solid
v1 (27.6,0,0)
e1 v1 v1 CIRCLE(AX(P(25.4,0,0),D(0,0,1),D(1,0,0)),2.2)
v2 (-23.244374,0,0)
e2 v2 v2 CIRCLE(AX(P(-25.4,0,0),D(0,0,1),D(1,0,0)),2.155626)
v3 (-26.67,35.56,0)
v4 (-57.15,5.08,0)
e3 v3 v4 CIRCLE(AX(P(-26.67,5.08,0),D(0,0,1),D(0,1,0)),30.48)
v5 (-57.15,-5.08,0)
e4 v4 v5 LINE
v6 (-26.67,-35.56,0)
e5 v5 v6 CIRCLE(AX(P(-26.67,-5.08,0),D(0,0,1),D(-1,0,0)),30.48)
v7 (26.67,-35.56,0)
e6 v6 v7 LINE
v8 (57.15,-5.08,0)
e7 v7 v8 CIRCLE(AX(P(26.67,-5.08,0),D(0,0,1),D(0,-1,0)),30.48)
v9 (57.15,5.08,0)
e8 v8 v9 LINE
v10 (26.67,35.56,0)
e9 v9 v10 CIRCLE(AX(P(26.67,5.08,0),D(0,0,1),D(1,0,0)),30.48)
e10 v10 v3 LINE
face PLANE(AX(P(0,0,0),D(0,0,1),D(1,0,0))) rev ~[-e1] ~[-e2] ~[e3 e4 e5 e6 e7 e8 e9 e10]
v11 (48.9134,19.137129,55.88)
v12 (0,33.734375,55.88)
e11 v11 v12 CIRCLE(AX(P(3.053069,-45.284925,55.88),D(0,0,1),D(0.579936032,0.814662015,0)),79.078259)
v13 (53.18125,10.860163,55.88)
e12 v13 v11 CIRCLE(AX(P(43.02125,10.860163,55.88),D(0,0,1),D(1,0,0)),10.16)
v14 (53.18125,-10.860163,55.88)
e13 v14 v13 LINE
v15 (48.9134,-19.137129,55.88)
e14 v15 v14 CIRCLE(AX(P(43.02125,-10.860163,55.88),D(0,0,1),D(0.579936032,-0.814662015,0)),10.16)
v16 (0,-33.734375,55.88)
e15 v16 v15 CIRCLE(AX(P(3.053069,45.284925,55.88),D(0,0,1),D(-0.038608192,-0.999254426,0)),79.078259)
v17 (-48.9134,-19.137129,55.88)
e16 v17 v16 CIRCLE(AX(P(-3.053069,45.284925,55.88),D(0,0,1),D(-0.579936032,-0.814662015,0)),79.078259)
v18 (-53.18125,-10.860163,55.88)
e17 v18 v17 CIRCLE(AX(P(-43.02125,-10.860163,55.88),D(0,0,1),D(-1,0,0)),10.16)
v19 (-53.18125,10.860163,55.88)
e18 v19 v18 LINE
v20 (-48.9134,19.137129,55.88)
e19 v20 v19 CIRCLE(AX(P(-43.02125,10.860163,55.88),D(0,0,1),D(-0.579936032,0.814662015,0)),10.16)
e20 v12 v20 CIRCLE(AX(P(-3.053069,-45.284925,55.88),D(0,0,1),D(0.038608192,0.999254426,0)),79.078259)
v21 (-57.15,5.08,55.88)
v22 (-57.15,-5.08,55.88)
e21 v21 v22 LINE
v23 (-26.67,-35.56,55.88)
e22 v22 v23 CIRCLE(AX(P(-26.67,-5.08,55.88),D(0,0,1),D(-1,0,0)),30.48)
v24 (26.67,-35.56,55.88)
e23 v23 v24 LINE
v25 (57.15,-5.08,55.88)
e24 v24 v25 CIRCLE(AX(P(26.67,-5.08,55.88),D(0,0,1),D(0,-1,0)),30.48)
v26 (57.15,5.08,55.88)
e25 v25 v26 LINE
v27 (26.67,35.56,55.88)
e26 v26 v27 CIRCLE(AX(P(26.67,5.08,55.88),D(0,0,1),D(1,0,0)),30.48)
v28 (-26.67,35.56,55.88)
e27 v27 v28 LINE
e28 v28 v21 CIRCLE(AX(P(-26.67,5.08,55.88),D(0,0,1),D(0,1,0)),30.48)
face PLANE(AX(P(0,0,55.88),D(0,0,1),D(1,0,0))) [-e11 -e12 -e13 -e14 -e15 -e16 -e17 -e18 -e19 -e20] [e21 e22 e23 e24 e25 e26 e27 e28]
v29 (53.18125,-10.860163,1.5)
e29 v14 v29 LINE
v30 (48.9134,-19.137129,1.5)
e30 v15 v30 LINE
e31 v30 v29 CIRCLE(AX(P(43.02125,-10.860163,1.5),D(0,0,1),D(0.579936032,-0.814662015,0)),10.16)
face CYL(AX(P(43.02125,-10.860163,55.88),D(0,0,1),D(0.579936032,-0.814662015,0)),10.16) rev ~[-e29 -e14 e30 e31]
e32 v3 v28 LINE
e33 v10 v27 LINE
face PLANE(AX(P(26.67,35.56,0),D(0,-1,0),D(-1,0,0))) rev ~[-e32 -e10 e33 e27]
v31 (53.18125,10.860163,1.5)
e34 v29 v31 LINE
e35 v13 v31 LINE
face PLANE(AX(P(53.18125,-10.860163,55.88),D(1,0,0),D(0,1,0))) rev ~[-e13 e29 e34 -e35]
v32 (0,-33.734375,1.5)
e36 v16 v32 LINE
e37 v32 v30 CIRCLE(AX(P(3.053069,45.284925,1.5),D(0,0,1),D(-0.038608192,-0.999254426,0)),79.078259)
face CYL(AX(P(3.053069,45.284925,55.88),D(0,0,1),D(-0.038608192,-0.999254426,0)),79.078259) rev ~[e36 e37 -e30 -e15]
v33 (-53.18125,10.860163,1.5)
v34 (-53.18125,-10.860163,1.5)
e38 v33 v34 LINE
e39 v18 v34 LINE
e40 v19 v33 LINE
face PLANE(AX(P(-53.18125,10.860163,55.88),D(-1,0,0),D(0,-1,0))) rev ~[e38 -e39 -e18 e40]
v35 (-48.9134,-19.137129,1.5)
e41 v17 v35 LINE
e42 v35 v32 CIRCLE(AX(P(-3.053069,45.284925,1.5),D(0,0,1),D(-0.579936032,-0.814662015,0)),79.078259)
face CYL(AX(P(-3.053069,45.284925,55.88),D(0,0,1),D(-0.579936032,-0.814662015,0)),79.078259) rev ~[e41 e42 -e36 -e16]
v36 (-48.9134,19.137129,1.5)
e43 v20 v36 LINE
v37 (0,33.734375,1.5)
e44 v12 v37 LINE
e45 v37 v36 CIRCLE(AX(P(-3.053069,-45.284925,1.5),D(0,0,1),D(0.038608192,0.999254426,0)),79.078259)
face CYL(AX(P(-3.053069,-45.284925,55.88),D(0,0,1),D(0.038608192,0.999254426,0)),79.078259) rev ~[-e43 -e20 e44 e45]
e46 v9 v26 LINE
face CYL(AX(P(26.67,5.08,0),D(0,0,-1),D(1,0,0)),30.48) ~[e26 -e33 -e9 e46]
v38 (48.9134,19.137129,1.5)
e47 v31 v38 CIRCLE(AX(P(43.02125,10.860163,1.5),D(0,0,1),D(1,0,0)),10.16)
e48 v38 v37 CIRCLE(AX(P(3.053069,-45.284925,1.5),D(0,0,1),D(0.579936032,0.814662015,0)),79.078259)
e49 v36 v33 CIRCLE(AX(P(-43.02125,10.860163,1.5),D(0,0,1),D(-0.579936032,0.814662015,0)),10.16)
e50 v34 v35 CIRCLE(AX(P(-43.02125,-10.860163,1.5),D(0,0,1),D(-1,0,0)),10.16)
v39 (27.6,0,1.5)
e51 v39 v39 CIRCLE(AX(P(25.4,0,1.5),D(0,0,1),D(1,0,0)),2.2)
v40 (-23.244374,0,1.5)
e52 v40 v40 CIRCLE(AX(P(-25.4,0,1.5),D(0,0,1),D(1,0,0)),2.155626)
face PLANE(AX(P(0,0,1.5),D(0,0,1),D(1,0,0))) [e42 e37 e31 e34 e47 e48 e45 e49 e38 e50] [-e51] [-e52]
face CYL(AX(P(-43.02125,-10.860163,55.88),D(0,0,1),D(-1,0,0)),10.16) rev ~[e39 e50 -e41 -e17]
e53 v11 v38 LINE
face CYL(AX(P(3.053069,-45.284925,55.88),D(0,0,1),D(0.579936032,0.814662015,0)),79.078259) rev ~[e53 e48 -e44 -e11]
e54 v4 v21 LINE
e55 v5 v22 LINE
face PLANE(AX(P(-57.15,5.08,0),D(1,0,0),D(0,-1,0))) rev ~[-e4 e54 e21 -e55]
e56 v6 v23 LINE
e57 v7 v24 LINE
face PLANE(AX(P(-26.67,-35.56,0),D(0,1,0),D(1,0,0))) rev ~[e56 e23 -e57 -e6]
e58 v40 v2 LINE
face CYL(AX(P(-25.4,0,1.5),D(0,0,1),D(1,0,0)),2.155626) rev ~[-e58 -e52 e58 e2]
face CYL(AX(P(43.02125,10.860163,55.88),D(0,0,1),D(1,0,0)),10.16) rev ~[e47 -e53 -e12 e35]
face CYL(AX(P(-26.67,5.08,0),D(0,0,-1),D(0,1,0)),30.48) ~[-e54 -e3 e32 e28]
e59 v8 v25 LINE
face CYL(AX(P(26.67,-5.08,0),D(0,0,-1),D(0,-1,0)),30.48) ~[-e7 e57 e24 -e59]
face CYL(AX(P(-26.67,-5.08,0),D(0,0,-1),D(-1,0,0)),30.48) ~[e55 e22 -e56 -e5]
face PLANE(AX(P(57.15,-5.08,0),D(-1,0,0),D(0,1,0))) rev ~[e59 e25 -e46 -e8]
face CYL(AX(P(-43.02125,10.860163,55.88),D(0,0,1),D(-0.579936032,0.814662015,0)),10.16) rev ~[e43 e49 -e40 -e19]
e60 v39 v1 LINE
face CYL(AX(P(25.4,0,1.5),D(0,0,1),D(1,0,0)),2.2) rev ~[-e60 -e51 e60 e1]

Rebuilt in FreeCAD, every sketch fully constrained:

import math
import FreeCAD as App
import Part
import Sketcher
from FreeCAD import Vector
Q = App.Units.Quantity

doc = App.newDocument("Part")
body = doc.addObject("PartDesign::Body", "Body")

# Sketch on XY plane
sketch1 = doc.addObject("Sketcher::SketchObject", "Sketch")
body.addObject(sketch1)
sketch1.AttachmentSupport = (doc.XY_Plane, [""])
sketch1.MapMode = "FlatFace"
sketch1.addGeometry(Part.LineSegment(Vector(26.67, 35.56, 0), Vector(-26.67, 35.56, 0)), False)
sketch1.addGeometry(Part.ArcOfCircle(Part.Circle(Vector(-26.67, 5.08, 0), Vector(0, 0, 1), 30.48), math.radians(90), math.radians(180)), False)
sketch1.addGeometry(Part.LineSegment(Vector(-57.15, 5.08, 0), Vector(-57.15, -5.08, 0)), False)
sketch1.addGeometry(Part.ArcOfCircle(Part.Circle(Vector(-26.67, -5.08, 0), Vector(0, 0, 1), 30.48), math.radians(180), math.radians(270)), False)
sketch1.addGeometry(Part.LineSegment(Vector(-26.67, -35.56, 0), Vector(26.67, -35.56, 0)), False)
sketch1.addGeometry(Part.ArcOfCircle(Part.Circle(Vector(26.67, -5.08, 0), Vector(0, 0, 1), 30.48), math.radians(-90), math.radians(0)), False)
sketch1.addGeometry(Part.LineSegment(Vector(57.15, -5.08, 0), Vector(57.15, 5.08, 0)), False)
sketch1.addGeometry(Part.ArcOfCircle(Part.Circle(Vector(26.67, 5.08, 0), Vector(0, 0, 1), 30.48), math.radians(0), math.radians(90)), False)
sketch1.addConstraint(Sketcher.Constraint("Tangent", 0, 2, 1, 1))
sketch1.addConstraint(Sketcher.Constraint("Tangent", 1, 2, 2, 1))
sketch1.addConstraint(Sketcher.Constraint("Tangent", 2, 2, 3, 1))
sketch1.addConstraint(Sketcher.Constraint("Tangent", 3, 2, 4, 1))
sketch1.addConstraint(Sketcher.Constraint("Tangent", 4, 2, 5, 1))
sketch1.addConstraint(Sketcher.Constraint("Tangent", 5, 2, 6, 1))
sketch1.addConstraint(Sketcher.Constraint("Tangent", 6, 2, 7, 1))
sketch1.addConstraint(Sketcher.Constraint("Tangent", 7, 2, 0, 1))
sketch1.addConstraint(Sketcher.Constraint("Horizontal", 0))
sketch1.addConstraint(Sketcher.Constraint("Vertical", 2))
sketch1.addConstraint(Sketcher.Constraint("Horizontal", 4))
sketch1.addConstraint(Sketcher.Constraint("Vertical", 6))
sketch1.addConstraint(Sketcher.Constraint("Equal", 1, 3))
sketch1.addConstraint(Sketcher.Constraint("Equal", 3, 5))
sketch1.addConstraint(Sketcher.Constraint("Equal", 5, 7))
sketch1.addConstraint(Sketcher.Constraint("Symmetric", 1, 3, 5, 3, -1, 1))
sketch1.addConstraint(Sketcher.Constraint("Radius", 1, Q("1.2 in")))
sketch1.addConstraint(Sketcher.Constraint("DistanceX", 0, 2, 0, 1, Q("2.1 in")))
sketch1.addConstraint(Sketcher.Constraint("DistanceY", 2, 2, 2, 1, Q("0.4 in")))
pad1 = doc.addObject("PartDesign::Pad", "Pad")
body.addObject(pad1)
pad1.Profile = sketch1
pad1.Length = Q("2.2 in")

# Sketch on XY plane
sketch2 = doc.addObject("Sketcher::SketchObject", "Sketch001")
body.addObject(sketch2)
sketch2.AttachmentSupport = (doc.XY_Plane, [""])
sketch2.MapMode = "FlatFace"
sketch2.AttachmentOffset = App.Placement(Vector(0, 0, 2.2 * 25.4), App.Rotation())
sketch2.addGeometry(Part.ArcOfCircle(Part.Circle(Vector(3.053069, -45.284925, 0), Vector(0, 0, 1), 79.078259), math.radians(54.553956), math.radians(92.212636)), False)
sketch2.addGeometry(Part.ArcOfCircle(Part.Circle(Vector(-3.053069, -45.284925, 0), Vector(0, 0, 1), 79.078259), math.radians(87.787364), math.radians(125.446044)), False)
sketch2.addGeometry(Part.ArcOfCircle(Part.Circle(Vector(-43.02125, 10.860163, 0), Vector(0, 0, 1), 10.16), math.radians(125.446044), math.radians(180)), False)
sketch2.addGeometry(Part.LineSegment(Vector(-53.18125, 10.860163, 0), Vector(-53.18125, -10.860163, 0)), False)
sketch2.addGeometry(Part.ArcOfCircle(Part.Circle(Vector(-43.02125, -10.860163, 0), Vector(0, 0, 1), 10.16), math.radians(180), math.radians(234.553956)), False)
sketch2.addGeometry(Part.ArcOfCircle(Part.Circle(Vector(-3.053069, 45.284925, 0), Vector(0, 0, 1), 79.078259), math.radians(-125.446044), math.radians(-87.787364)), False)
sketch2.addGeometry(Part.ArcOfCircle(Part.Circle(Vector(3.053069, 45.284925, 0), Vector(0, 0, 1), 79.078259), math.radians(-92.212636), math.radians(-54.553956)), False)
sketch2.addGeometry(Part.ArcOfCircle(Part.Circle(Vector(43.02125, -10.860163, 0), Vector(0, 0, 1), 10.16), math.radians(-54.553956), math.radians(0)), False)
sketch2.addGeometry(Part.LineSegment(Vector(53.18125, -10.860163, 0), Vector(53.18125, 10.860163, 0)), False)
sketch2.addGeometry(Part.ArcOfCircle(Part.Circle(Vector(43.02125, 10.860163, 0), Vector(0, 0, 1), 10.16), math.radians(0), math.radians(54.553956)), False)
sketch2.addConstraint(Sketcher.Constraint("Coincident", 0, 2, 1, 1))
sketch2.addConstraint(Sketcher.Constraint("Tangent", 1, 2, 2, 1))
sketch2.addConstraint(Sketcher.Constraint("Tangent", 2, 2, 3, 1))
sketch2.addConstraint(Sketcher.Constraint("Tangent", 3, 2, 4, 1))
sketch2.addConstraint(Sketcher.Constraint("Tangent", 4, 2, 5, 1))
sketch2.addConstraint(Sketcher.Constraint("Coincident", 5, 2, 6, 1))
sketch2.addConstraint(Sketcher.Constraint("Tangent", 6, 2, 7, 1))
sketch2.addConstraint(Sketcher.Constraint("Tangent", 7, 2, 8, 1))
sketch2.addConstraint(Sketcher.Constraint("Tangent", 8, 2, 9, 1))
sketch2.addConstraint(Sketcher.Constraint("Tangent", 9, 2, 0, 1))
sketch2.addConstraint(Sketcher.Constraint("Vertical", 3))
sketch2.addConstraint(Sketcher.Constraint("Vertical", 8))
sketch2.addConstraint(Sketcher.Constraint("Equal", 0, 1))
sketch2.addConstraint(Sketcher.Constraint("Equal", 2, 4))
sketch2.addConstraint(Sketcher.Constraint("Equal", 1, 5))
sketch2.addConstraint(Sketcher.Constraint("Equal", 5, 6))
sketch2.addConstraint(Sketcher.Constraint("Equal", 4, 7))
sketch2.addConstraint(Sketcher.Constraint("Equal", 7, 9))
sketch2.addConstraint(Sketcher.Constraint("Symmetric", 0, 3, 5, 3, -1, 1))
sketch2.addConstraint(Sketcher.Constraint("Symmetric", 1, 3, 6, 3, -1, 1))
sketch2.addConstraint(Sketcher.Constraint("Symmetric", 0, 3, 1, 3, -2))
sketch2.addConstraint(Sketcher.Constraint("Horizontal", 4, 3, 7, 3))
sketch2.addConstraint(Sketcher.Constraint("Radius", 2, Q("0.4 in")))
sketch2.addConstraint(Sketcher.Constraint("DistanceY", -1, 1, 0, 2, Q("1.328125 in")))
sketch2.addConstraint(Sketcher.Constraint("DistanceX", 2, 2, -1, 1, Q("2.09375 in")))
sketch2.addConstraint(Sketcher.Constraint("Radius", 0, 79.078259))
sketch2.addConstraint(Sketcher.Constraint("DistanceX", 4, 2, -1, 1, 48.9134))
pocket1 = doc.addObject("PartDesign::Pocket", "Pocket")
body.addObject(pocket1)
pocket1.Profile = sketch2
pocket1.Length = 54.38

# Sketch on XY plane
sketch3 = doc.addObject("Sketcher::SketchObject", "Sketch002")
body.addObject(sketch3)
sketch3.AttachmentSupport = (doc.XY_Plane, [""])
sketch3.MapMode = "FlatFace"
sketch3.AttachmentOffset = App.Placement(Vector(0, 0, 1.5), App.Rotation())
sketch3.addGeometry(Part.Circle(Vector(-25.4, 0, 0), Vector(0, 0, 1), 2.155626), False)
sketch3.addGeometry(Part.Circle(Vector(25.4, 0, 0), Vector(0, 0, 1), 2.2), False)
sketch3.addConstraint(Sketcher.Constraint("Symmetric", 0, 3, 1, 3, -1, 1))
sketch3.addConstraint(Sketcher.Constraint("PointOnObject", 0, 3, -1))
sketch3.addConstraint(Sketcher.Constraint("DistanceX", 0, 3, -1, 1, Q("1 in")))
sketch3.addConstraint(Sketcher.Constraint("Diameter", 1, 4.4))
sketch3.addConstraint(Sketcher.Constraint("Diameter", 0, 4.311251))
pocket2 = doc.addObject("PartDesign::Pocket", "Pocket001")
body.addObject(pocket2)
pocket2.Profile = sketch3
pocket2.Type = "ThroughAll"

doc.recompute()
